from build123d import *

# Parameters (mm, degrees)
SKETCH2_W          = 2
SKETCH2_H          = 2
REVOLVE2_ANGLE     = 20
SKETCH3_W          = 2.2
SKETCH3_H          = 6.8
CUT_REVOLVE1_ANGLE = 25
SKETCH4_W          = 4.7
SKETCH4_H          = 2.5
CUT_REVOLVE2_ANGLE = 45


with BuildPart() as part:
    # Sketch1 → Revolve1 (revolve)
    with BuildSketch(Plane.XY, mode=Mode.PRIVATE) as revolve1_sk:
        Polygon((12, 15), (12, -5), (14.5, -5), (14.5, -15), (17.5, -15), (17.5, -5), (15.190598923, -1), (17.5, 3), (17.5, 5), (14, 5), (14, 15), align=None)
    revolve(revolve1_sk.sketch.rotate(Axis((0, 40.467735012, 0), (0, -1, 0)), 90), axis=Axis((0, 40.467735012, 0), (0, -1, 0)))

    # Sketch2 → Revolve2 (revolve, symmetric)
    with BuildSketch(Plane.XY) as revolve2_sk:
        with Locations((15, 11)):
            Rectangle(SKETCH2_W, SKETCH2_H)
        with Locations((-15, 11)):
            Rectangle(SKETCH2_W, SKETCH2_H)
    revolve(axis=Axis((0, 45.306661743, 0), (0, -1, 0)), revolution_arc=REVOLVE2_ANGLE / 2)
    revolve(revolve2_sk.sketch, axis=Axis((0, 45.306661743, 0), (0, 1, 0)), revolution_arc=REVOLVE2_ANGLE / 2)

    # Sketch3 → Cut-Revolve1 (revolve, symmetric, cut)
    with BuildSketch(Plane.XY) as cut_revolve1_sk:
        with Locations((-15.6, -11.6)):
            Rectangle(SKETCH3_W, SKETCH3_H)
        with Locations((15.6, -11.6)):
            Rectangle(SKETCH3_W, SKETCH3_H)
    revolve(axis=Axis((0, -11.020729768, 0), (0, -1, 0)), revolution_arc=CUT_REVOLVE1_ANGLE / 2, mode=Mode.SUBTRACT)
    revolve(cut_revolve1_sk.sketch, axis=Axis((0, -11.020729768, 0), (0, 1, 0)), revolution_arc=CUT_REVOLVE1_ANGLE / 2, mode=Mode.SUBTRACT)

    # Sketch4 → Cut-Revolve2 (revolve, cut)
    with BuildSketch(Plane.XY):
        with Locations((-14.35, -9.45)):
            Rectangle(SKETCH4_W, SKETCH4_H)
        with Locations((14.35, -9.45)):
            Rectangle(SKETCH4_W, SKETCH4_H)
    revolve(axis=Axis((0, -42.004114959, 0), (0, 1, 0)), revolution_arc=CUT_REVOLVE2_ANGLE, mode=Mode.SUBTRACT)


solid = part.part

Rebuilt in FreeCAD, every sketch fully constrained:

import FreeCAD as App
import Part
import Sketcher

V = App.Vector
Q = App.Units.Quantity


def add_polygon(sketch, points):
    """Adds a closed chain of lines whose ends are joined by coincident constraints."""
    first, n = sketch.GeometryCount, len(points)
    for a, b in zip(points, points[1:] + points[:1]):
        sketch.addGeometry(Part.LineSegment(App.Vector(*a, 0), App.Vector(*b, 0)), False)
    for i in range(n):
        sketch.addConstraint(Sketcher.Constraint("Coincident", first + i, 2, first + (i + 1) % n, 1))

doc = App.newDocument("Part")
body = doc.addObject("PartDesign::Body", "Body")

# Sketch on XY plane
sketch1 = body.newObject("Sketcher::SketchObject", "Sketch")
sketch1.AttachmentSupport = (doc.getObject("XY_Plane"), [""])
sketch1.MapMode = "FlatFace"
add_polygon(sketch1, [(12, 15), (12, -5), (14.5, -5), (14.5, -15), (17.5, -15), (17.5, -5), (15.2, -1), (17.5, 3), (17.5, 5), (14, 5), (14, 15)])  # lines 0-10
sketch1.addConstraint([
    Sketcher.Constraint("Vertical", 0),
    Sketcher.Constraint("Horizontal", 1),
    Sketcher.Constraint("Vertical", 2),
    Sketcher.Constraint("Horizontal", 3),
    Sketcher.Constraint("Vertical", 4),
    Sketcher.Constraint("Vertical", 7),
    Sketcher.Constraint("Horizontal", 8),
    Sketcher.Constraint("Vertical", 9),
    Sketcher.Constraint("Horizontal", 10),
    Sketcher.Constraint("Symmetric", 4, 2, 7, 2, -1),
    Sketcher.Constraint("Horizontal", 1, 2, 4, 2),
    Sketcher.Constraint("Equal", 10, 7),
    Sketcher.Constraint("Equal", 4, 9),
    Sketcher.Constraint("Equal", 5, 6),
    Sketcher.Constraint("DistanceX", 3, 1, 3, 2, 3.0),
    Sketcher.Constraint("DistanceX", 10, 2, 10, 1, 2.0),
    Sketcher.Constraint("DistanceY", 0, 2, 0, 1, 20.0),
    Sketcher.Constraint("DistanceY", 2, 2, 2, 1, 10.0),
    Sketcher.Constraint("Angle", 5, Q("120 deg")),
    Sketcher.Constraint("DistanceX", 1, 1, 1, 2, 2.5),
    Sketcher.Constraint("DistanceX", -1, 1, 0, 2, 12.0),
])
revolution = body.newObject("PartDesign::Revolution", "Revolution")
revolution.Profile = sketch1
revolution.ReferenceAxis = (sketch1, ["V_Axis"])
revolution.Angle = 360

# Sketch on XY plane
sketch2 = body.newObject("Sketcher::SketchObject", "Sketch001")
sketch2.AttachmentSupport = (doc.getObject("XY_Plane"), [""])
sketch2.MapMode = "FlatFace"
add_polygon(sketch2, [(14, 12), (14, 10), (16, 10), (16, 12)])  # lines 0-3
add_polygon(sketch2, [(-16, 12), (-16, 10), (-14, 10), (-14, 12)])  # lines 4-7
sketch2.addConstraint([
    Sketcher.Constraint("Vertical", 0),
    Sketcher.Constraint("Horizontal", 1),
    Sketcher.Constraint("Vertical", 2),
    Sketcher.Constraint("Horizontal", 3),
    Sketcher.Constraint("Vertical", 4),
    Sketcher.Constraint("Horizontal", 5),
    Sketcher.Constraint("Vertical", 6),
    Sketcher.Constraint("Horizontal", 7),
    Sketcher.Constraint("Symmetric", 1, 2, 4, 2, -2),
    Sketcher.Constraint("Symmetric", 3, 2, 6, 2, -2),
    Sketcher.Constraint("Equal", 7, 0),
    Sketcher.Constraint("DistanceX", 1, 1, 1, 2, 2.0),
    Sketcher.Constraint("DistanceX", -1, 1, 0, 2, 14.0),
    Sketcher.Constraint("DistanceY", -1, 1, 0, 2, 10.0),
])
revolution2 = body.newObject("PartDesign::Revolution", "Revolution001")
revolution2.Profile = sketch2
revolution2.ReferenceAxis = (sketch2, ["V_Axis"])
revolution2.Angle = 10
revolution2.Reversed = True

# Sketch on XY plane
sketch3 = body.newObject("Sketcher::SketchObject", "Sketch002")
sketch3.AttachmentSupport = (doc.getObject("XY_Plane"), [""])
sketch3.MapMode = "FlatFace"
add_polygon(sketch3, [(14, 12), (14, 10), (16, 10), (16, 12)])  # lines 0-3
add_polygon(sketch3, [(-16, 12), (-16, 10), (-14, 10), (-14, 12)])  # lines 4-7
sketch3.addConstraint([
    Sketcher.Constraint("Vertical", 0),
    Sketcher.Constraint("Horizontal", 1),
    Sketcher.Constraint("Vertical", 2),
    Sketcher.Constraint("Horizontal", 3),
    Sketcher.Constraint("Vertical", 4),
    Sketcher.Constraint("Horizontal", 5),
    Sketcher.Constraint("Vertical", 6),
    Sketcher.Constraint("Horizontal", 7),
    Sketcher.Constraint("Symmetric", 1, 2, 4, 2, -2),
    Sketcher.Constraint("Symmetric", 3, 2, 6, 2, -2),
    Sketcher.Constraint("Equal", 7, 0),
    Sketcher.Constraint("DistanceX", 1, 1, 1, 2, 2.0),
    Sketcher.Constraint("DistanceX", -1, 1, 0, 2, 14.0),
    Sketcher.Constraint("DistanceY", -1, 1, 0, 2, 10.0),
])
revolution3 = body.newObject("PartDesign::Revolution", "Revolution002")
revolution3.Profile = sketch3
revolution3.ReferenceAxis = (sketch3, ["V_Axis"])
revolution3.Angle = 10

# Sketch on XY plane
sketch4 = body.newObject("Sketcher::SketchObject", "Sketch003")
sketch4.AttachmentSupport = (doc.getObject("XY_Plane"), [""])
sketch4.MapMode = "FlatFace"
add_polygon(sketch4, [(-16.7, -8.2), (-16.7, -15), (-14.5, -15), (-14.5, -8.2)])  # lines 0-3
add_polygon(sketch4, [(14.5, -8.2), (14.5, -15), (16.7, -15), (16.7, -8.2)])  # lines 4-7
sketch4.addConstraint([
    Sketcher.Constraint("Vertical", 0),
    Sketcher.Constraint("Horizontal", 1),
    Sketcher.Constraint("Vertical", 2),
    Sketcher.Constraint("Horizontal", 3),
    Sketcher.Constraint("Vertical", 4),
    Sketcher.Constraint("Horizontal", 5),
    Sketcher.Constraint("Vertical", 6),
    Sketcher.Constraint("Horizontal", 7),
    Sketcher.Constraint("Symmetric", 1, 2, 4, 2, -2),
    Sketcher.Constraint("Symmetric", 3, 2, 6, 2, -2),
    Sketcher.Constraint("DistanceX", 1, 1, 1, 2, 2.2),
    Sketcher.Constraint("DistanceY", 0, 2, 0, 1, 6.8),
    Sketcher.Constraint("DistanceY", 0, 2, -1, 1, 15.0),
    Sketcher.Constraint("DistanceX", 1, 2, 4, 2, 29.0),
])
groove = body.newObject("PartDesign::Groove", "Groove")
groove.Profile = sketch4
groove.ReferenceAxis = (sketch4, ["V_Axis"])
groove.Angle = 12.5
groove.Reversed = True

# Sketch on XY plane
sketch5 = body.newObject("Sketcher::SketchObject", "Sketch004")
sketch5.AttachmentSupport = (doc.getObject("XY_Plane"), [""])
sketch5.MapMode = "FlatFace"
add_polygon(sketch5, [(-16.7, -8.2), (-16.7, -15), (-14.5, -15), (-14.5, -8.2)])  # lines 0-3
add_polygon(sketch5, [(14.5, -8.2), (14.5, -15), (16.7, -15), (16.7, -8.2)])  # lines 4-7
sketch5.addConstraint([
    Sketcher.Constraint("Vertical", 0),
    Sketcher.Constraint("Horizontal", 1),
    Sketcher.Constraint("Vertical", 2),
    Sketcher.Constraint("Horizontal", 3),
    Sketcher.Constraint("Vertical", 4),
    Sketcher.Constraint("Horizontal", 5),
    Sketcher.Constraint("Vertical", 6),
    Sketcher.Constraint("Horizontal", 7),
    Sketcher.Constraint("Symmetric", 1, 2, 4, 2, -2),
    Sketcher.Constraint("Symmetric", 3, 2, 6, 2, -2),
    Sketcher.Constraint("DistanceX", 1, 1, 1, 2, 2.2),
    Sketcher.Constraint("DistanceY", 0, 2, 0, 1, 6.8),
    Sketcher.Constraint("DistanceY", 0, 2, -1, 1, 15.0),
    Sketcher.Constraint("DistanceX", 1, 2, 4, 2, 29.0),
])
groove2 = body.newObject("PartDesign::Groove", "Groove001")
groove2.Profile = sketch5
groove2.ReferenceAxis = (sketch5, ["V_Axis"])
groove2.Angle = 12.5

# Sketch on XY plane
sketch6 = body.newObject("Sketcher::SketchObject", "Sketch005")
sketch6.AttachmentSupport = (doc.getObject("XY_Plane"), [""])
sketch6.MapMode = "FlatFace"
add_polygon(sketch6, [(-16.7, -8.2), (-16.7, -10.7), (-12, -10.7), (-12, -8.2)])  # lines 0-3
add_polygon(sketch6, [(12, -8.2), (12, -10.7), (16.7, -10.7), (16.7, -8.2)])  # lines 4-7
sketch6.addConstraint([
    Sketcher.Constraint("Vertical", 0),
    Sketcher.Constraint("Horizontal", 1),
    Sketcher.Constraint("Vertical", 2),
    Sketcher.Constraint("Horizontal", 3),
    Sketcher.Constraint("Vertical", 4),
    Sketcher.Constraint("Horizontal", 5),
    Sketcher.Constraint("Vertical", 6),
    Sketcher.Constraint("Horizontal", 7),
    Sketcher.Constraint("Symmetric", 1, 2, 4, 2, -2),
    Sketcher.Constraint("Symmetric", 3, 2, 6, 2, -2),
    Sketcher.Constraint("DistanceX", 1, 1, 1, 2, 4.7),
    Sketcher.Constraint("DistanceY", 0, 2, 0, 1, 2.5),
    Sketcher.Constraint("DistanceX", 1, 2, -1, 1, 12.0),
    Sketcher.Constraint("DistanceY", 0, 2, -1, 1, 10.7),
])
groove3 = body.newObject("PartDesign::Groove", "Groove002")
groove3.Profile = sketch6
groove3.ReferenceAxis = (sketch6, ["V_Axis"])
groove3.Angle = 45

doc.recompute()
